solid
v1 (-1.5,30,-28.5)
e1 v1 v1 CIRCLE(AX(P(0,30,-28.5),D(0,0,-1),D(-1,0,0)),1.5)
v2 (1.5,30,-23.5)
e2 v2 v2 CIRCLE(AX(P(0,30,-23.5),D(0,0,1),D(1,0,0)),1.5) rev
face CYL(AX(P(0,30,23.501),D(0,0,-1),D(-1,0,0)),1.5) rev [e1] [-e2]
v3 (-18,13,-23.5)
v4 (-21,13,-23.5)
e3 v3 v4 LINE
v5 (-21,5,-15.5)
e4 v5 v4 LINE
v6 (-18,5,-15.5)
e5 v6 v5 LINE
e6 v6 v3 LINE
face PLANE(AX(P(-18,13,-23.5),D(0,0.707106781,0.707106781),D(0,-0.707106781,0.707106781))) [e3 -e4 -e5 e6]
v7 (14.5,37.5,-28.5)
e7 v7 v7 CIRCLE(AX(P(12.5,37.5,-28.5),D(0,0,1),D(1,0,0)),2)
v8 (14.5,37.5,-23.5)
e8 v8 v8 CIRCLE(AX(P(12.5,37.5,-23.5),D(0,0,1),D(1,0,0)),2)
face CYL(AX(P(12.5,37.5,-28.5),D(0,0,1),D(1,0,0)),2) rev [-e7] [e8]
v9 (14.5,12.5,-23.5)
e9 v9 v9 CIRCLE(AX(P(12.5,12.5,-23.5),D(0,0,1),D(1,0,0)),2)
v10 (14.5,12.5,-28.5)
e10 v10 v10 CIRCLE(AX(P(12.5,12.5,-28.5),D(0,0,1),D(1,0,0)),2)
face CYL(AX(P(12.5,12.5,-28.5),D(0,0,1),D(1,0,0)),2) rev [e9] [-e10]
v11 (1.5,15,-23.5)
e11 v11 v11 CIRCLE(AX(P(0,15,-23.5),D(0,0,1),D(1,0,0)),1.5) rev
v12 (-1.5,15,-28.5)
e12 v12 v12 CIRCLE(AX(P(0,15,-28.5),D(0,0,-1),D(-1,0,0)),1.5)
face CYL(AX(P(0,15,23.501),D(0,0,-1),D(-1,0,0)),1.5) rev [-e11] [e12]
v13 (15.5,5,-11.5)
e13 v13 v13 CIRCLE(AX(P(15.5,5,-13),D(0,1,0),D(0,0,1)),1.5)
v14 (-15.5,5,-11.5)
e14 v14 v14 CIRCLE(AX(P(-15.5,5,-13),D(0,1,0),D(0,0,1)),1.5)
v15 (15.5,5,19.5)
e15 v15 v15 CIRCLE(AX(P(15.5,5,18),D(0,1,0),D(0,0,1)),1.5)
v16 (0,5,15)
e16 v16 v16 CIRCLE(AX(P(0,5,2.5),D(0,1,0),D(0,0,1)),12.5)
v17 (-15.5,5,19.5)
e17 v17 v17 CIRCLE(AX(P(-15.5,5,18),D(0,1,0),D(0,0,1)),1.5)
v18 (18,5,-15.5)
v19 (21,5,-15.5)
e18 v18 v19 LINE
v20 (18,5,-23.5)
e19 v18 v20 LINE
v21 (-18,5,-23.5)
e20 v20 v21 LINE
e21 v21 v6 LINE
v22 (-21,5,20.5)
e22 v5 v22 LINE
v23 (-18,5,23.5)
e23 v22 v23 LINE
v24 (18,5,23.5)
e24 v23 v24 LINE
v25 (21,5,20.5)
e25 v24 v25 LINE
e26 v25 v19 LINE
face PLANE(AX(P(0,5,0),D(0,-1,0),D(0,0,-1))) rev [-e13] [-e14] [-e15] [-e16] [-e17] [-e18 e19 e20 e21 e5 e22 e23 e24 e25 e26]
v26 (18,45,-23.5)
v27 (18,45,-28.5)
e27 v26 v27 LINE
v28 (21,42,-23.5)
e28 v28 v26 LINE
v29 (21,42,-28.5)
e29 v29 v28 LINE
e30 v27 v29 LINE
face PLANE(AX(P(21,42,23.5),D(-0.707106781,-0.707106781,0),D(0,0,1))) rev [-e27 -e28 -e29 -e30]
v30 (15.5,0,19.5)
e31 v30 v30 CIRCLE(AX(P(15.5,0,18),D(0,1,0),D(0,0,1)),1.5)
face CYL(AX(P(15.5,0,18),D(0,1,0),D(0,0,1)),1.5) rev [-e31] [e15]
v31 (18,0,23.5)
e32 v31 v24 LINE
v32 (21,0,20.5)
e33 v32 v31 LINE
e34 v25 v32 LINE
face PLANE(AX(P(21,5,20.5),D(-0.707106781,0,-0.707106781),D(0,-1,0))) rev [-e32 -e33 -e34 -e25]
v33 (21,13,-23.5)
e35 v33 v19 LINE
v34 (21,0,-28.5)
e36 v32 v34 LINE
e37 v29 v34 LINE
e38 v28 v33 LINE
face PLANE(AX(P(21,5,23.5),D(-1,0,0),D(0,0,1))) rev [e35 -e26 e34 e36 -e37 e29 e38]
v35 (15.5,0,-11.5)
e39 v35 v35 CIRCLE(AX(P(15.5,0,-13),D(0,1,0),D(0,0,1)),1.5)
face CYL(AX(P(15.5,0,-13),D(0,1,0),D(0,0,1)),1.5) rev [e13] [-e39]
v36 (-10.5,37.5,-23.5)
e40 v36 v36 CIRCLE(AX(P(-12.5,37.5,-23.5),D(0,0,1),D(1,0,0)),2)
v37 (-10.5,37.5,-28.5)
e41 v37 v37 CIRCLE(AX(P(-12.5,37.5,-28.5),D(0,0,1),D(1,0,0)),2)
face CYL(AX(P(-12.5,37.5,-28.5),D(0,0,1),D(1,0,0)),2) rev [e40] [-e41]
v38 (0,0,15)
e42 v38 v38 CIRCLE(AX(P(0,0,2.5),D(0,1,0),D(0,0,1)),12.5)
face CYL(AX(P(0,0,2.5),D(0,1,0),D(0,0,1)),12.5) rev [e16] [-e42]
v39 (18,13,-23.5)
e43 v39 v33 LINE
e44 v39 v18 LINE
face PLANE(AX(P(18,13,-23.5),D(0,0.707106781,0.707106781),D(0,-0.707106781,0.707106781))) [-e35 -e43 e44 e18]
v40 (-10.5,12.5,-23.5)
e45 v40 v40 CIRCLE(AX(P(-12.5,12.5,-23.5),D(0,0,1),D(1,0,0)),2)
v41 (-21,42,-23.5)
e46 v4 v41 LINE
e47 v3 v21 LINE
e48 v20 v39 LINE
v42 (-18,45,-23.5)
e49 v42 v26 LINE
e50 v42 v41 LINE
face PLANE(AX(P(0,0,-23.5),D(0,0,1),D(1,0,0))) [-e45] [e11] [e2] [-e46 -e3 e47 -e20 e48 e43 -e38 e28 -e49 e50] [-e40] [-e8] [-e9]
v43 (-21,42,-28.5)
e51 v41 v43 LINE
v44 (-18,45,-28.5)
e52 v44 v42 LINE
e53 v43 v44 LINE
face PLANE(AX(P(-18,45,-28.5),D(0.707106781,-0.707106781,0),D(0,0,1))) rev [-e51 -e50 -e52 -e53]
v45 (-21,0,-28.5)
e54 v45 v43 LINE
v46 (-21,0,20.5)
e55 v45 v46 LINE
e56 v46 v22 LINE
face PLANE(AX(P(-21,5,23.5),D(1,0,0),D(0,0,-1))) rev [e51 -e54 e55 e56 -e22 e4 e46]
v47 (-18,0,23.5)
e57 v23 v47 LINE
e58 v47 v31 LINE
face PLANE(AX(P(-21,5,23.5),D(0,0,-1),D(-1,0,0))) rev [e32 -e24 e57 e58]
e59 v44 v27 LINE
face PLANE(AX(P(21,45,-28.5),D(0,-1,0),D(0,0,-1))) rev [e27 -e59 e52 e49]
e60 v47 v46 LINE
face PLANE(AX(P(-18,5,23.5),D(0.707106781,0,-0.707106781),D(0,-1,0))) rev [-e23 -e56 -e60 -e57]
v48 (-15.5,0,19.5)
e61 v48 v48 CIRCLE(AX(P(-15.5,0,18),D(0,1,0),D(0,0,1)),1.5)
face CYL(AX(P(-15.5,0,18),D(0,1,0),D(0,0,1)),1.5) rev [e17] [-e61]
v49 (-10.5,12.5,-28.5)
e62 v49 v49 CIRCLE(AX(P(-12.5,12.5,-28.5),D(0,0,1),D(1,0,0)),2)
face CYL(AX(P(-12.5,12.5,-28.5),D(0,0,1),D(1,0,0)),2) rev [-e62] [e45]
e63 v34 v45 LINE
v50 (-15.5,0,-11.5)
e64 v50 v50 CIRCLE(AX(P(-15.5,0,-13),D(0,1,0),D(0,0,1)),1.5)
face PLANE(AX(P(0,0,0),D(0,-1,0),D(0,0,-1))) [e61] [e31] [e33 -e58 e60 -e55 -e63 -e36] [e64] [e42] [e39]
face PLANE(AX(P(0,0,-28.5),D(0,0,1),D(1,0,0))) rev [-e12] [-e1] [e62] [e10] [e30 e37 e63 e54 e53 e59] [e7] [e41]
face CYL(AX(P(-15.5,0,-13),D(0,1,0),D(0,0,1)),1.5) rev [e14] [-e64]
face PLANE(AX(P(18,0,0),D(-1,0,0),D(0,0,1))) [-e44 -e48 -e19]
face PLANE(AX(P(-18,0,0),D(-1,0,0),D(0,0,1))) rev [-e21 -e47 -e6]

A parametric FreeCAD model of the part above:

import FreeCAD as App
import Part
import Sketcher

V = App.Vector


def edges_at(feature, points):
    """Names of the edges that pass closest to the given points."""
    edges = feature.Shape.Edges
    near = lambda p: min(range(len(edges)), key=lambda i: edges[i].distToShape(Part.Vertex(*p))[0])
    return sorted({f"Edge{near(p) + 1}" for p in points})


def add_polygon(sketch, points):
    """Adds a closed chain of lines whose ends are joined by coincident constraints."""
    first, n = sketch.GeometryCount, len(points)
    for a, b in zip(points, points[1:] + points[:1]):
        sketch.addGeometry(Part.LineSegment(App.Vector(*a, 0), App.Vector(*b, 0)), False)
    for i in range(n):
        sketch.addConstraint(Sketcher.Constraint("Coincident", first + i, 2, first + (i + 1) % n, 1))

doc = App.newDocument("Part")
body = doc.addObject("PartDesign::Body", "Body")

sketch1 = body.newObject("Sketcher::SketchObject", "Sketch")
sketch1.AttachmentSupport = (doc.getObject("XZ_Plane"), [""])
sketch1.MapMode = "FlatFace"
add_polygon(sketch1, [(-21, -24), (-21, 24), (21, 24), (21, -24)])
sketch1.addConstraint(Sketcher.Constraint("Vertical", 0))
sketch1.addConstraint(Sketcher.Constraint("Horizontal", 1))
sketch1.addConstraint(Sketcher.Constraint("Vertical", 2))
sketch1.addConstraint(Sketcher.Constraint("Horizontal", 3))
sketch1.addConstraint(Sketcher.Constraint("Symmetric", 0, 2, 2, 2, -1, 1))
sketch1.addConstraint(Sketcher.Constraint("DistanceX", 1, 1, 1, 2, 42.0))
sketch1.addConstraint(Sketcher.Constraint("DistanceY", 0, 1, 0, 2, 47.0))
pad1 = body.newObject("PartDesign::Pad", "Pad")
pad1.Profile = sketch1
pad1.Length = 5
pad1.Reversed = True

sketch2 = body.newObject("Sketcher::SketchObject", "Sketch001")
sketch2.AttachmentSupport = (doc.getObject("XZ_Plane"), [""])
sketch2.MapMode = "FlatFace"
sketch2.AttachmentOffset = App.Placement(V(0, 0, -5), App.Rotation())
sketch2.addGeometry(Part.Circle(V(-15.5, -13, 0), V(0, 0, 1), 1.5), False)
sketch2.addGeometry(Part.Circle(V(15.5, -13, 0), V(0, 0, 1), 1.5), False)
sketch2.addGeometry(Part.Circle(V(15.5, 18, 0), V(0, 0, 1), 1.5), False)
sketch2.addGeometry(Part.Circle(V(-15.5, 18, 0), V(0, 0, 1), 1.5), False)
sketch2.addGeometry(Part.Circle(V(0, 2.5, 0), V(0, 0, 1), 12.5), False)
sketch2.addConstraint(Sketcher.Constraint("Equal", 0, 1))
sketch2.addConstraint(Sketcher.Constraint("Equal", 1, 2))
sketch2.addConstraint(Sketcher.Constraint("Equal", 2, 3))
sketch2.addConstraint(Sketcher.Constraint("Symmetric", 0, 3, 1, 3, -2))
sketch2.addConstraint(Sketcher.Constraint("Symmetric", 2, 3, 3, 3, -2))
sketch2.addConstraint(Sketcher.Constraint("PointOnObject", 4, 3, -2))
sketch2.addConstraint(Sketcher.Constraint("Vertical", 1, 3, 2, 3))
sketch2.addConstraint(Sketcher.Constraint("Diameter", 0, 3.0))
sketch2.addConstraint(Sketcher.Constraint("Diameter", 4, 25.0))
sketch2.addConstraint(Sketcher.Constraint("DistanceY", 0, 3, -1, 1, 13.0))
sketch2.addConstraint(Sketcher.Constraint("DistanceY", -1, 1, 2, 3, 18.0))
sketch2.addConstraint(Sketcher.Constraint("DistanceX", 0, 3, 1, 3, 31.0))
sketch2.addConstraint(Sketcher.Constraint("DistanceY", -1, 1, 4, 3, 2.5))
pocket1 = body.newObject("PartDesign::Pocket", "Pocket")
pocket1.Profile = sketch2
pocket1.Type = "ThroughAll"
pocket1.Reversed = True

sketch3 = body.newObject("Sketcher::SketchObject", "Sketch002")
sketch3.AttachmentSupport = (doc.getObject("XY_Plane"), [""])
sketch3.MapMode = "FlatFace"
sketch3.AttachmentOffset = App.Placement(V(0, 0, -23.5), App.Rotation())
add_polygon(sketch3, [(21, 45), (21, 0), (-21, 0), (-21, 45)])
sketch3.addConstraint(Sketcher.Constraint("Vertical", 0))
sketch3.addConstraint(Sketcher.Constraint("Horizontal", 1))
sketch3.addConstraint(Sketcher.Constraint("Vertical", 2))
sketch3.addConstraint(Sketcher.Constraint("Horizontal", 3))
sketch3.addConstraint(Sketcher.Constraint("Symmetric", 0, 2, 1, 2, -1, 1))
sketch3.addConstraint(Sketcher.Constraint("DistanceX", 1, 2, 1, 1, 42.0))
sketch3.addConstraint(Sketcher.Constraint("DistanceY", 0, 2, 0, 1, 45.0))
pad2 = body.newObject("PartDesign::Pad", "Pad001")
pad2.Profile = sketch3
pad2.Length = 5
pad2.Reversed = True

sketch4 = body.newObject("Sketcher::SketchObject", "Sketch003")
sketch4.AttachmentSupport = (doc.getObject("YZ_Plane"), [""])
sketch4.MapMode = "FlatFace"
sketch4.AttachmentOffset = App.Placement(V(0, 0, 21), App.Rotation())
add_polygon(sketch4, [(13, -24), (5, -16), (5, -24)])
sketch4.addConstraint(Sketcher.Constraint("Vertical", 1))
sketch4.addConstraint(Sketcher.Constraint("Horizontal", 2))
sketch4.addConstraint(Sketcher.Constraint("Equal", 2, 1))
sketch4.addConstraint(Sketcher.Constraint("DistanceX", 2, 1, 2, 2, 8.0))
sketch4.addConstraint(Sketcher.Constraint("DistanceX", -1, 1, 0, 2, 5.0))
sketch4.addConstraint(Sketcher.Constraint("DistanceY", 0, 2, -1, 1, 15.5))
pad3 = body.newObject("PartDesign::Pad", "Pad002")
pad3.Profile = sketch4
pad3.Length = 3
pad3.Reversed = True

sketch5 = body.newObject("Sketcher::SketchObject", "Sketch004")
sketch5.AttachmentSupport = (doc.getObject("YZ_Plane"), [""])
sketch5.MapMode = "FlatFace"
sketch5.AttachmentOffset = App.Placement(V(0, 0, -21), App.Rotation())
add_polygon(sketch5, [(5, -16), (13, -24), (5, -24)])
sketch5.addConstraint(Sketcher.Constraint("Horizontal", 1))
sketch5.addConstraint(Sketcher.Constraint("Vertical", 2))
sketch5.addConstraint(Sketcher.Constraint("Equal", 1, 2))
sketch5.addConstraint(Sketcher.Constraint("DistanceX", 1, 2, 1, 1, 8.0))
sketch5.addConstraint(Sketcher.Constraint("DistanceX", -1, 1, 0, 2, 13.0))
sketch5.addConstraint(Sketcher.Constraint("DistanceY", 0, 2, -1, 1, 23.5))
pad4 = body.newObject("PartDesign::Pad", "Pad003")
pad4.Profile = sketch5
pad4.Length = 3

sketch6 = body.newObject("Sketcher::SketchObject", "Sketch005")
sketch6.AttachmentSupport = (doc.getObject("XY_Plane"), [""])
sketch6.MapMode = "FlatFace"
sketch6.AttachmentOffset = App.Placement(V(0, 0, -23.5), App.Rotation())
sketch6.addGeometry(Part.Circle(V(-12.5, 37.5, 0), V(0, 0, 1), 2), False)
sketch6.addGeometry(Part.Circle(V(12.5, 37.5, 0), V(0, 0, 1), 2), False)
sketch6.addGeometry(Part.Circle(V(12.5, 12.5, 0), V(0, 0, 1), 2), False)
sketch6.addGeometry(Part.Circle(V(-12.5, 12.5, 0), V(0, 0, 1), 2), False)
sketch6.addConstraint(Sketcher.Constraint("Equal", 0, 1))
sketch6.addConstraint(Sketcher.Constraint("Equal", 1, 2))
sketch6.addConstraint(Sketcher.Constraint("Equal", 2, 3))
sketch6.addConstraint(Sketcher.Constraint("Symmetric", 0, 3, 1, 3, -2))
sketch6.addConstraint(Sketcher.Constraint("Symmetric", 2, 3, 3, 3, -2))
sketch6.addConstraint(Sketcher.Constraint("Vertical", 1, 3, 2, 3))
sketch6.addConstraint(Sketcher.Constraint("Diameter", 0, 4.0))
sketch6.addConstraint(Sketcher.Constraint("DistanceX", 0, 3, 1, 3, 25.0))
sketch6.addConstraint(Sketcher.Constraint("DistanceY", 2, 3, 1, 3, 25.0))
sketch6.addConstraint(Sketcher.Constraint("DistanceY", -1, 1, 0, 3, 37.5))
pocket2 = body.newObject("PartDesign::Pocket", "Pocket001")
pocket2.Profile = sketch6
pocket2.Type = "ThroughAll"
doc.recompute()

chamfer = body.newObject("PartDesign::Chamfer", "Chamfer")
chamfer.Base = (pocket2, edges_at(pocket2, [
    (-21, 2.5, 23.5),
    (21, 2.5, 23.5),
    (21, 45, -26),
    (-21, 45, -26),
]))
chamfer.Size = 3

sketch7 = body.newObject("Sketcher::SketchObject", "Sketch006")
sketch7.AttachmentSupport = (doc.getObject("XY_Plane"), [""])
sketch7.MapMode = "FlatFace"
sketch7.AttachmentOffset = App.Placement(V(0, 0, -28.5), App.Rotation())
sketch7.addGeometry(Part.Circle(V(0, 30, 0), V(0, 0, 1), 1.5), False)
sketch7.addConstraint(Sketcher.Constraint("PointOnObject", 0, 3, -2))
sketch7.addConstraint(Sketcher.Constraint("Diameter", 0, 3.0))
sketch7.addConstraint(Sketcher.Constraint("DistanceY", -1, 1, 0, 3, 30.0))
pocket3 = body.newObject("PartDesign::Pocket", "Pocket002")
pocket3.Profile = sketch7
pocket3.Type = "UpToFirst"
pocket3.Reversed = True

sketch8 = body.newObject("Sketcher::SketchObject", "Sketch007")
sketch8.AttachmentSupport = (doc.getObject("XY_Plane"), [""])
sketch8.MapMode = "FlatFace"
sketch8.AttachmentOffset = App.Placement(V(0, 0, -28.5), App.Rotation())
sketch8.addGeometry(Part.Circle(V(0, 15, 0), V(0, 0, 1), 1.5), False)
sketch8.addConstraint(Sketcher.Constraint("PointOnObject", 0, 3, -2))
sketch8.addConstraint(Sketcher.Constraint("Diameter", 0, 3.0))
sketch8.addConstraint(Sketcher.Constraint("DistanceY", -1, 1, 0, 3, 15.0))
pocket4 = body.newObject("PartDesign::Pocket", "Pocket003")
pocket4.Profile = sketch8
pocket4.Type = "UpToFirst"
pocket4.Reversed = True

doc.recompute()
